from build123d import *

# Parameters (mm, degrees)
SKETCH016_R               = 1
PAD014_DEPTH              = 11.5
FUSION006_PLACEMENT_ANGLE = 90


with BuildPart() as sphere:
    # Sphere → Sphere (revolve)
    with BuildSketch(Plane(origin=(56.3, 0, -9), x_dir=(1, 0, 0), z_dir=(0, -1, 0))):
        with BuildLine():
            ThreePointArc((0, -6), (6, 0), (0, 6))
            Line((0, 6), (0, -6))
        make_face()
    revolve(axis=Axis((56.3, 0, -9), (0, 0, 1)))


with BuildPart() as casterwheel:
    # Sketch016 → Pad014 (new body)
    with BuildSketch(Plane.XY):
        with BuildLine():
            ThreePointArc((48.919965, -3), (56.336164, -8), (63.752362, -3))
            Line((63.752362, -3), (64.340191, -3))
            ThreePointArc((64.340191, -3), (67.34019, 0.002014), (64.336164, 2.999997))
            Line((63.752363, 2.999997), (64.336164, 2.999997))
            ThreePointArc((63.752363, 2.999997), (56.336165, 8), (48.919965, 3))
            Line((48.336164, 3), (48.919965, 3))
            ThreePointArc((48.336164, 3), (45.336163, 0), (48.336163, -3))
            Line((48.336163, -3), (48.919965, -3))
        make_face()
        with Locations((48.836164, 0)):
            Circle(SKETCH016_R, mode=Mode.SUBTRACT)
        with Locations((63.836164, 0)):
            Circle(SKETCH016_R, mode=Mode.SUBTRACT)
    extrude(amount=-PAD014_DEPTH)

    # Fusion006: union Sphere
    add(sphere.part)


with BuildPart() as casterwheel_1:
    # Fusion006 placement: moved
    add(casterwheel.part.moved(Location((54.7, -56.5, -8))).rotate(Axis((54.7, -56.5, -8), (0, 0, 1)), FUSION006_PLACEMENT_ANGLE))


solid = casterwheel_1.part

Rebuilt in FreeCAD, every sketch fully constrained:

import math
import FreeCAD as App
import Part
import Sketcher
from FreeCAD import Vector
Q = App.Units.Quantity

doc = App.newDocument("Part")
body = doc.addObject("PartDesign::Body", "Body")

# Sketch on XZ plane
sketch1 = body.newObject("Sketcher::SketchObject", "Sketch")
sketch1.AttachmentSupport = (doc.getObject("XZ_Plane"), [""])
sketch1.MapMode = "FlatFace"
sketch1.addGeometry([
    Part.ArcOfCircle(Part.Circle(Vector(56.3, -9, 0), Vector(0, 0, 1), 6), math.radians(-90), math.radians(90)),
    Part.LineSegment(Vector(56.3, -3, 0), Vector(56.3, -15, 0)),
], False)
sketch1.addGeometry(Part.LineSegment(Vector(56.3, -15, 0), Vector(56.3, -3, 0)), True)  # axis
sketch1.addConstraint([
    Sketcher.Constraint("Coincident", 0, 1, 1, 2),
    Sketcher.Constraint("Coincident", 1, 1, 0, 2),
    Sketcher.Constraint("Vertical", 1),
    Sketcher.Constraint("Vertical", 2),
    Sketcher.Constraint("Coincident", 2, 1, 0, 1),
    Sketcher.Constraint("Equal", 1, 2),
    Sketcher.Constraint("Radius", 0, Q("6 mm")),
    Sketcher.Constraint("DistanceY", 0, 3, -1, 1, Q("9 mm")),
    Sketcher.Constraint("DistanceX", -1, 1, 0, 3, Q("56.3 mm")),
    Sketcher.Constraint("DistanceX", -1, 1, 0, 1, Q("56.3 mm")),
])
revolution = body.newObject("PartDesign::Revolution", "Revolution")
revolution.Profile = sketch1
revolution.ReferenceAxis = (sketch1, ["Axis0"])
revolution.Angle = 360
body2 = doc.addObject("PartDesign::Body", "Body001")

# Sketch on XY plane
sketch2 = body2.newObject("Sketcher::SketchObject", "Sketch001")
sketch2.AttachmentSupport = (doc.getObject("XY_Plane001"), [""])
sketch2.MapMode = "FlatFace"
sketch2.addGeometry([
    Part.ArcOfCircle(Part.Circle(Vector(56.336163, 0, 0), Vector(0, 0, 1), 8), math.radians(-157.975687), math.radians(-22.024313)),  # 0
    Part.LineSegment(Vector(63.752362, -3, 0), Vector(64.340191, -3, 0)),  # 1
    Part.ArcOfCircle(Part.Circle(Vector(64.340191, 0, 0), Vector(0, 0, 1), 3), math.radians(-89.999997), math.radians(90.076907)),  # 2
    Part.LineSegment(Vector(64.336164, 2.999997, 0), Vector(63.752363, 2.999997, 0)),  # 3
    Part.ArcOfCircle(Part.Circle(Vector(56.336163, 0, 0), Vector(0, 0, 1), 8), math.radians(22.024289), math.radians(157.975688)),  # 4
    Part.LineSegment(Vector(48.919965, 3, 0), Vector(48.336164, 3, 0)),  # 5
    Part.ArcOfCircle(Part.Circle(Vector(48.336163, 0, 0), Vector(0, 0, 1), 3), math.radians(89.999981), math.radians(270)),  # 6
    Part.LineSegment(Vector(48.336163, -3, 0), Vector(48.919965, -3, 0)),  # 7
    Part.Circle(Vector(48.836164, 0, 0), Vector(0, 0, 1), 1),  # 8
    Part.Circle(Vector(63.836164, 0, 0), Vector(0, 0, 1), 1),  # 9
], False)
sketch2.addConstraint([
    Sketcher.Constraint("Coincident", 0, 2, 1, 1),
    Sketcher.Constraint("Tangent", 1, 2, 2, 1),
    Sketcher.Constraint("Coincident", 2, 2, 3, 1),
    Sketcher.Constraint("Coincident", 3, 2, 4, 1),
    Sketcher.Constraint("Coincident", 4, 2, 5, 1),
    Sketcher.Constraint("Tangent", 5, 2, 6, 1),
    Sketcher.Constraint("Tangent", 6, 2, 7, 1),
    Sketcher.Constraint("Coincident", 7, 2, 0, 1),
    Sketcher.Constraint("Horizontal", 1),
    Sketcher.Constraint("Horizontal", 3),
    Sketcher.Constraint("Horizontal", 5),
    Sketcher.Constraint("Horizontal", 7),
    Sketcher.Constraint("Coincident", 4, 3, 0, 3),
    Sketcher.Constraint("Equal", 0, 4),
    Sketcher.Constraint("Equal", 2, 6),
    Sketcher.Constraint("Equal", 8, 9),
    Sketcher.Constraint("Symmetric", 0, 2, 3, 2, -1),
    Sketcher.Constraint("PointOnObject", 6, 3, -1),
    Sketcher.Constraint("PointOnObject", 8, 3, -1),
    Sketcher.Constraint("PointOnObject", 9, 3, -1),
    Sketcher.Constraint("Equal", 3, 5),
    Sketcher.Constraint("Diameter", 8, Q("2 mm")),
    Sketcher.Constraint("Radius", 0, Q("8 mm")),
    Sketcher.Constraint("Radius", 2, Q("3 mm")),
    Sketcher.Constraint("DistanceX", 6, 3, 4, 3, Q("8 mm")),
    Sketcher.Constraint("DistanceX", 8, 3, 9, 3, Q("15 mm")),
    Sketcher.Constraint("DistanceX", 6, 3, 8, 3, Q("0.500001 mm")),
    Sketcher.Constraint("DistanceX", 1, 1, 1, 2, Q("0.587829 mm")),
    Sketcher.Constraint("DistanceX", -1, 1, 2, 3, Q("64.340191 mm")),
])
pad1 = body2.newObject("PartDesign::Pad", "Pad")
pad1.Profile = sketch2
pad1.Length = 11.5
pad1.Reversed = True
doc.recompute()

boolean = body2.newObject("PartDesign::Boolean", "Boolean")
boolean.Type = "Fuse"
boolean.addObjects([body])
body3 = doc.addObject("PartDesign::Body", "Body002")
doc.recompute()

body2.Placement = App.Placement(Vector(54.7, -56.5, -8), App.Rotation(Vector(0, 0, 1), 90))
boolean2 = body3.newObject("PartDesign::Boolean", "Boolean001")
boolean2.Type = "Fuse"
boolean2.addObjects([body2])

doc.recompute()
